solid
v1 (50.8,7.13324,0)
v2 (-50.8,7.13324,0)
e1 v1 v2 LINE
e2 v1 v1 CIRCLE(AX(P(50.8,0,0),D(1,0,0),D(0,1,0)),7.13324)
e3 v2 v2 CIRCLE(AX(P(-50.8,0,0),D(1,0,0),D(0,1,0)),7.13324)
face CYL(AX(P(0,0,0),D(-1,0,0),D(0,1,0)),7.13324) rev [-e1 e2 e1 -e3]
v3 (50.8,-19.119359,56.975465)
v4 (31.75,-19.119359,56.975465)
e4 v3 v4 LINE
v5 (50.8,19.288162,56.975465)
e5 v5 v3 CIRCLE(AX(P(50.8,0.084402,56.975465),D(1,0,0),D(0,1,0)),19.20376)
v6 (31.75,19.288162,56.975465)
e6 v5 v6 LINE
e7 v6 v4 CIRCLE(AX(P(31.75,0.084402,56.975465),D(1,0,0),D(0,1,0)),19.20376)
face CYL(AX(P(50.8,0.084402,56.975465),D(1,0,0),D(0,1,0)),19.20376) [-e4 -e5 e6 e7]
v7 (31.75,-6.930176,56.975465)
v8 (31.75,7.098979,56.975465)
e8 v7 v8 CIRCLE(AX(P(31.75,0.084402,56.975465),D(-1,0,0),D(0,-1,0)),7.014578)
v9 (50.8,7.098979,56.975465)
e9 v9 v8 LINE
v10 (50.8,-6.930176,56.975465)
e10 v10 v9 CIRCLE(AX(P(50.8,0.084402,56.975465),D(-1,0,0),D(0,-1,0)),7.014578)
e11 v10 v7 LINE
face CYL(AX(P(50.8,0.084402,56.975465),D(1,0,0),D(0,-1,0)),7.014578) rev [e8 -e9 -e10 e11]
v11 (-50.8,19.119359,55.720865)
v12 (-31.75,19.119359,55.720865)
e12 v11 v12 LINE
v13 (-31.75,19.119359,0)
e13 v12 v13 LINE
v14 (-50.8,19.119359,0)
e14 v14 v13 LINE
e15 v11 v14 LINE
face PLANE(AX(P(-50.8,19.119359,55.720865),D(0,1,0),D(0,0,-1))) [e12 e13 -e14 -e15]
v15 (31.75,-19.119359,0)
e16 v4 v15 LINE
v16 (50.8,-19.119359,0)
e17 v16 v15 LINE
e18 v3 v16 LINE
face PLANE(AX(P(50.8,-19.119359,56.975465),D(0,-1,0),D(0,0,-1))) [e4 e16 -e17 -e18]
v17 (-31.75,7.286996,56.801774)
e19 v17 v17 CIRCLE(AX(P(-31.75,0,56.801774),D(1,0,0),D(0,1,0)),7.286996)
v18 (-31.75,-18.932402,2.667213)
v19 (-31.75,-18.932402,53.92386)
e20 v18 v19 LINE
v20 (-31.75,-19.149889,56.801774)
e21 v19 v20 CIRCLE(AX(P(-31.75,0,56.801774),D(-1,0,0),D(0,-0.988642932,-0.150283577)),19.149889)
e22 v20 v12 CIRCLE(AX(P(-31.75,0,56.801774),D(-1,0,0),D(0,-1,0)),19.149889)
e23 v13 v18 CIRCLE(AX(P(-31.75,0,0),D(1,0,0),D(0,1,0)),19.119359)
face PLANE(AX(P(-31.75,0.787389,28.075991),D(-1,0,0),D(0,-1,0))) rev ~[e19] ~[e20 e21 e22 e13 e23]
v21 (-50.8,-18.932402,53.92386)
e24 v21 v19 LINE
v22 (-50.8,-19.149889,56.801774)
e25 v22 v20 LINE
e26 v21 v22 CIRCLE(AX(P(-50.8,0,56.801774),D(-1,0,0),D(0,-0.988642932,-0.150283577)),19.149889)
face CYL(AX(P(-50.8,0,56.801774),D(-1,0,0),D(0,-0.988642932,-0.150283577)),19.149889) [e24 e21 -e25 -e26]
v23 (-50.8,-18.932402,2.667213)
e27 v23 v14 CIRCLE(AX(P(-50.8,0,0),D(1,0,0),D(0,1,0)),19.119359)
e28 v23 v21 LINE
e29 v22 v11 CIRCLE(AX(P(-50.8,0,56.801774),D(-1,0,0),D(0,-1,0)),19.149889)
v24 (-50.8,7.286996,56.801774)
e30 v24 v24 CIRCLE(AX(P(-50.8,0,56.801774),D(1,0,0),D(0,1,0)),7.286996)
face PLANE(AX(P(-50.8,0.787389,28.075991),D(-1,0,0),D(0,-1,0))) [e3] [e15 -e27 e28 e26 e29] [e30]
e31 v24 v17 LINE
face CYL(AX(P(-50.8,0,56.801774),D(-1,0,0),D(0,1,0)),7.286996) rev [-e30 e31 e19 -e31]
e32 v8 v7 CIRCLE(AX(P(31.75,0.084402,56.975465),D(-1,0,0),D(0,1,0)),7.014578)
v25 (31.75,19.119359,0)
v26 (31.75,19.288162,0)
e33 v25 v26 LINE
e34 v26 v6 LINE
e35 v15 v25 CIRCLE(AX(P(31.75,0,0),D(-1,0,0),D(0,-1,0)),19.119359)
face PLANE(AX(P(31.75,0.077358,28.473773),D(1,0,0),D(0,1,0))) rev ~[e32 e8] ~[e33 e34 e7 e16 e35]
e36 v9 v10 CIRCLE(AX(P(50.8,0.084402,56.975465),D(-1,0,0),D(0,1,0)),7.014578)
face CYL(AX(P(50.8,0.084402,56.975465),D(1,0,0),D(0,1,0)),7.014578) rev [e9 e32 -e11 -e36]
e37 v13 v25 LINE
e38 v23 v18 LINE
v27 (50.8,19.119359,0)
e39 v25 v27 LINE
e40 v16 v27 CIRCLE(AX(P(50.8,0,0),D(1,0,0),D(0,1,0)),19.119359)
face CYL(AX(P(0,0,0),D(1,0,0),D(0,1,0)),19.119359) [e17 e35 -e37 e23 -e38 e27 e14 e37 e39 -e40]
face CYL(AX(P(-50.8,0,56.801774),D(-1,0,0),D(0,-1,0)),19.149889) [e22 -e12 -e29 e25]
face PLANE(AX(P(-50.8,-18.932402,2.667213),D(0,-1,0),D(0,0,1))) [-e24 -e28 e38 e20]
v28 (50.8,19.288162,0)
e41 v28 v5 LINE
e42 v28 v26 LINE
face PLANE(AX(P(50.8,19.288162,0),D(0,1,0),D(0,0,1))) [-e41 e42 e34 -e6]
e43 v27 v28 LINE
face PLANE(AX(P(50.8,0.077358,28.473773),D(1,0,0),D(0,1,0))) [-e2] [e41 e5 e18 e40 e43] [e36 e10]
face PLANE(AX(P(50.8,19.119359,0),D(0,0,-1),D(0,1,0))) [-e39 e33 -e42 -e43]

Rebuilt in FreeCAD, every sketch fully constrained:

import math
import FreeCAD as App
import Part
import Sketcher
Q = App.Units.Quantity

doc = App.newDocument("Part")
body = doc.addObject("PartDesign::Body", "Body")

# Sketch on YZ plane
sketch1 = body.newObject("Sketcher::SketchObject", "Sketch")
sketch1.AttachmentSupport = (doc.getObject("YZ_Plane"), [""])
sketch1.MapMode = "FlatFace"
sketch1.addGeometry(Part.Circle(App.Vector(0, 0, 0), App.Vector(0, 0, 1), 19), False)
sketch1.addGeometry(Part.Circle(App.Vector(0, 0, 0), App.Vector(0, 0, 1), 7), False)
sketch1.addConstraint(Sketcher.Constraint("Coincident", 0, 3, -1, 1))
sketch1.addConstraint(Sketcher.Constraint("Coincident", 1, 3, -1, 1))
sketch1.addConstraint(Sketcher.Constraint("Diameter", 1, 14.26648))
sketch1.addConstraint(Sketcher.Constraint("Diameter", 0, 38.238717))
pad1 = body.newObject("PartDesign::Pad", "Pad")
pad1.Profile = sketch1
pad1.Type = "TwoLengths"
pad1.Length = Q("2 in")
pad1.Length2 = Q("2 in")

# Sketch on YZ plane
sketch2 = body.newObject("Sketcher::SketchObject", "Sketch001")
sketch2.AttachmentSupport = (doc.getObject("YZ_Plane"), [""])
sketch2.MapMode = "FlatFace"
sketch2.AttachmentOffset = App.Placement(App.Vector(0, 0, -2 * 25.4), App.Rotation())
sketch2.addGeometry(Part.ArcOfCircle(Part.Circle(App.Vector(0, 0, 0), App.Vector(0, 0, 1), 19.1), math.radians(0), math.radians(172)), False)
sketch2.addGeometry(Part.LineSegment(App.Vector(-18.9, 2.7, 0), App.Vector(-18.9, 53.9, 0)), False)
sketch2.addGeometry(Part.ArcOfCircle(Part.Circle(App.Vector(0, 56.8, 0), App.Vector(0, 0, 1), 19.1), math.radians(180), math.radians(188.64)), False)
sketch2.addGeometry(Part.ArcOfCircle(Part.Circle(App.Vector(0, 56.8, 0), App.Vector(0, 0, 1), 19.1), math.radians(-3), math.radians(180)), False)
sketch2.addGeometry(Part.LineSegment(App.Vector(19.1, 55.7, 0), App.Vector(19.1, 0, 0)), False)
sketch2.addGeometry(Part.Circle(App.Vector(0, 56.8, 0), App.Vector(0, 0, 1), 7.3), False)
sketch2.addConstraint(Sketcher.Constraint("Coincident", 0, 2, 1, 1))
sketch2.addConstraint(Sketcher.Constraint("Coincident", 1, 2, 2, 2))
sketch2.addConstraint(Sketcher.Constraint("Tangent", 2, 1, 3, 2))
sketch2.addConstraint(Sketcher.Constraint("Coincident", 3, 1, 4, 1))
sketch2.addConstraint(Sketcher.Constraint("Tangent", 4, 2, 0, 1))
sketch2.addConstraint(Sketcher.Constraint("Vertical", 1))
sketch2.addConstraint(Sketcher.Constraint("Vertical", 4))
sketch2.addConstraint(Sketcher.Constraint("Coincident", 0, 3, -1, 1))
sketch2.addConstraint(Sketcher.Constraint("Coincident", 5, 3, 2, 3))
sketch2.addConstraint(Sketcher.Constraint("Equal", 2, 3))
sketch2.addConstraint(Sketcher.Constraint("PointOnObject", 2, 3, -2))
sketch2.addConstraint(Sketcher.Constraint("Horizontal", 5, 3, 2, 1))
sketch2.addConstraint(Sketcher.Constraint("Diameter", 5, 14.573992))
sketch2.addConstraint(Sketcher.Constraint("Radius", 0, 19.119359))
sketch2.addConstraint(Sketcher.Constraint("Radius", 2, 19.149889))
sketch2.addConstraint(Sketcher.Constraint("DistanceY", 1, 1, 1, 2, 51.256647))
sketch2.addConstraint(Sketcher.Constraint("DistanceY", 4, 2, 4, 1, 55.720865))
pad2 = body.newObject("PartDesign::Pad", "Pad001")
pad2.Profile = sketch2
pad2.Length = Q("0.75 in")

# Sketch on YZ plane
sketch3 = body.newObject("Sketcher::SketchObject", "Sketch002")
sketch3.AttachmentSupport = (doc.getObject("YZ_Plane"), [""])
sketch3.MapMode = "FlatFace"
sketch3.AttachmentOffset = App.Placement(App.Vector(0, 0, 2 * 25.4), App.Rotation())
sketch3.addGeometry(Part.ArcOfCircle(Part.Circle(App.Vector(0, 0, 0), App.Vector(0, 0, 1), 19.12), math.radians(0), math.radians(180)), False)
sketch3.addGeometry(Part.LineSegment(App.Vector(19.12, 0, 0), App.Vector(19.29, 0, 0)), False)
sketch3.addGeometry(Part.LineSegment(App.Vector(19.29, 0, 0), App.Vector(19.29, 56.98, 0)), False)
sketch3.addGeometry(Part.ArcOfCircle(Part.Circle(App.Vector(0.08, 56.98, 0), App.Vector(0, 0, 1), 19.2), math.radians(0), math.radians(180)), False)
sketch3.addGeometry(Part.LineSegment(App.Vector(-19.12, 56.98, 0), App.Vector(-19.12, 0, 0)), False)
sketch3.addGeometry(Part.ArcOfCircle(Part.Circle(App.Vector(0.08, 56.98, 0), App.Vector(0, 0, 1), 7.01), math.radians(180), math.radians(360)), False)
sketch3.addGeometry(Part.ArcOfCircle(Part.Circle(App.Vector(0.08, 56.98, 0), App.Vector(0, 0, 1), 7.01), math.radians(0), math.radians(180)), False)
sketch3.addConstraint(Sketcher.Constraint("Coincident", 0, 1, 1, 1))
sketch3.addConstraint(Sketcher.Constraint("Coincident", 1, 2, 2, 1))
sketch3.addConstraint(Sketcher.Constraint("Tangent", 2, 2, 3, 1))
sketch3.addConstraint(Sketcher.Constraint("Tangent", 3, 2, 4, 1))
sketch3.addConstraint(Sketcher.Constraint("Tangent", 4, 2, 0, 2))
sketch3.addConstraint(Sketcher.Constraint("Tangent", 5, 1, 6, 2))
sketch3.addConstraint(Sketcher.Constraint("Coincident", 6, 1, 5, 2))
sketch3.addConstraint(Sketcher.Constraint("Horizontal", 1))
sketch3.addConstraint(Sketcher.Constraint("Vertical", 2))
sketch3.addConstraint(Sketcher.Constraint("Vertical", 4))
sketch3.addConstraint(Sketcher.Constraint("Coincident", 0, 3, -1, 1))
sketch3.addConstraint(Sketcher.Constraint("Coincident", 5, 3, 3, 3))
sketch3.addConstraint(Sketcher.Constraint("PointOnObject", 0, 1, -1))
sketch3.addConstraint(Sketcher.Constraint("Horizontal", 3, 2, 5, 1))
sketch3.addConstraint(Sketcher.Constraint("Horizontal", 5, 1, 6, 1))
sketch3.addConstraint(Sketcher.Constraint("Radius", 0, 19.119359))
sketch3.addConstraint(Sketcher.Constraint("Radius", 3, 19.20376))
sketch3.addConstraint(Sketcher.Constraint("Radius", 5, 7.014578))
sketch3.addConstraint(Sketcher.Constraint("DistanceY", 2, 1, 2, 2, 56.975465))
pad3 = body.newObject("PartDesign::Pad", "Pad002")
pad3.Profile = sketch3
pad3.Length = Q("0.75 in")
pad3.Reversed = True

doc.recompute()
